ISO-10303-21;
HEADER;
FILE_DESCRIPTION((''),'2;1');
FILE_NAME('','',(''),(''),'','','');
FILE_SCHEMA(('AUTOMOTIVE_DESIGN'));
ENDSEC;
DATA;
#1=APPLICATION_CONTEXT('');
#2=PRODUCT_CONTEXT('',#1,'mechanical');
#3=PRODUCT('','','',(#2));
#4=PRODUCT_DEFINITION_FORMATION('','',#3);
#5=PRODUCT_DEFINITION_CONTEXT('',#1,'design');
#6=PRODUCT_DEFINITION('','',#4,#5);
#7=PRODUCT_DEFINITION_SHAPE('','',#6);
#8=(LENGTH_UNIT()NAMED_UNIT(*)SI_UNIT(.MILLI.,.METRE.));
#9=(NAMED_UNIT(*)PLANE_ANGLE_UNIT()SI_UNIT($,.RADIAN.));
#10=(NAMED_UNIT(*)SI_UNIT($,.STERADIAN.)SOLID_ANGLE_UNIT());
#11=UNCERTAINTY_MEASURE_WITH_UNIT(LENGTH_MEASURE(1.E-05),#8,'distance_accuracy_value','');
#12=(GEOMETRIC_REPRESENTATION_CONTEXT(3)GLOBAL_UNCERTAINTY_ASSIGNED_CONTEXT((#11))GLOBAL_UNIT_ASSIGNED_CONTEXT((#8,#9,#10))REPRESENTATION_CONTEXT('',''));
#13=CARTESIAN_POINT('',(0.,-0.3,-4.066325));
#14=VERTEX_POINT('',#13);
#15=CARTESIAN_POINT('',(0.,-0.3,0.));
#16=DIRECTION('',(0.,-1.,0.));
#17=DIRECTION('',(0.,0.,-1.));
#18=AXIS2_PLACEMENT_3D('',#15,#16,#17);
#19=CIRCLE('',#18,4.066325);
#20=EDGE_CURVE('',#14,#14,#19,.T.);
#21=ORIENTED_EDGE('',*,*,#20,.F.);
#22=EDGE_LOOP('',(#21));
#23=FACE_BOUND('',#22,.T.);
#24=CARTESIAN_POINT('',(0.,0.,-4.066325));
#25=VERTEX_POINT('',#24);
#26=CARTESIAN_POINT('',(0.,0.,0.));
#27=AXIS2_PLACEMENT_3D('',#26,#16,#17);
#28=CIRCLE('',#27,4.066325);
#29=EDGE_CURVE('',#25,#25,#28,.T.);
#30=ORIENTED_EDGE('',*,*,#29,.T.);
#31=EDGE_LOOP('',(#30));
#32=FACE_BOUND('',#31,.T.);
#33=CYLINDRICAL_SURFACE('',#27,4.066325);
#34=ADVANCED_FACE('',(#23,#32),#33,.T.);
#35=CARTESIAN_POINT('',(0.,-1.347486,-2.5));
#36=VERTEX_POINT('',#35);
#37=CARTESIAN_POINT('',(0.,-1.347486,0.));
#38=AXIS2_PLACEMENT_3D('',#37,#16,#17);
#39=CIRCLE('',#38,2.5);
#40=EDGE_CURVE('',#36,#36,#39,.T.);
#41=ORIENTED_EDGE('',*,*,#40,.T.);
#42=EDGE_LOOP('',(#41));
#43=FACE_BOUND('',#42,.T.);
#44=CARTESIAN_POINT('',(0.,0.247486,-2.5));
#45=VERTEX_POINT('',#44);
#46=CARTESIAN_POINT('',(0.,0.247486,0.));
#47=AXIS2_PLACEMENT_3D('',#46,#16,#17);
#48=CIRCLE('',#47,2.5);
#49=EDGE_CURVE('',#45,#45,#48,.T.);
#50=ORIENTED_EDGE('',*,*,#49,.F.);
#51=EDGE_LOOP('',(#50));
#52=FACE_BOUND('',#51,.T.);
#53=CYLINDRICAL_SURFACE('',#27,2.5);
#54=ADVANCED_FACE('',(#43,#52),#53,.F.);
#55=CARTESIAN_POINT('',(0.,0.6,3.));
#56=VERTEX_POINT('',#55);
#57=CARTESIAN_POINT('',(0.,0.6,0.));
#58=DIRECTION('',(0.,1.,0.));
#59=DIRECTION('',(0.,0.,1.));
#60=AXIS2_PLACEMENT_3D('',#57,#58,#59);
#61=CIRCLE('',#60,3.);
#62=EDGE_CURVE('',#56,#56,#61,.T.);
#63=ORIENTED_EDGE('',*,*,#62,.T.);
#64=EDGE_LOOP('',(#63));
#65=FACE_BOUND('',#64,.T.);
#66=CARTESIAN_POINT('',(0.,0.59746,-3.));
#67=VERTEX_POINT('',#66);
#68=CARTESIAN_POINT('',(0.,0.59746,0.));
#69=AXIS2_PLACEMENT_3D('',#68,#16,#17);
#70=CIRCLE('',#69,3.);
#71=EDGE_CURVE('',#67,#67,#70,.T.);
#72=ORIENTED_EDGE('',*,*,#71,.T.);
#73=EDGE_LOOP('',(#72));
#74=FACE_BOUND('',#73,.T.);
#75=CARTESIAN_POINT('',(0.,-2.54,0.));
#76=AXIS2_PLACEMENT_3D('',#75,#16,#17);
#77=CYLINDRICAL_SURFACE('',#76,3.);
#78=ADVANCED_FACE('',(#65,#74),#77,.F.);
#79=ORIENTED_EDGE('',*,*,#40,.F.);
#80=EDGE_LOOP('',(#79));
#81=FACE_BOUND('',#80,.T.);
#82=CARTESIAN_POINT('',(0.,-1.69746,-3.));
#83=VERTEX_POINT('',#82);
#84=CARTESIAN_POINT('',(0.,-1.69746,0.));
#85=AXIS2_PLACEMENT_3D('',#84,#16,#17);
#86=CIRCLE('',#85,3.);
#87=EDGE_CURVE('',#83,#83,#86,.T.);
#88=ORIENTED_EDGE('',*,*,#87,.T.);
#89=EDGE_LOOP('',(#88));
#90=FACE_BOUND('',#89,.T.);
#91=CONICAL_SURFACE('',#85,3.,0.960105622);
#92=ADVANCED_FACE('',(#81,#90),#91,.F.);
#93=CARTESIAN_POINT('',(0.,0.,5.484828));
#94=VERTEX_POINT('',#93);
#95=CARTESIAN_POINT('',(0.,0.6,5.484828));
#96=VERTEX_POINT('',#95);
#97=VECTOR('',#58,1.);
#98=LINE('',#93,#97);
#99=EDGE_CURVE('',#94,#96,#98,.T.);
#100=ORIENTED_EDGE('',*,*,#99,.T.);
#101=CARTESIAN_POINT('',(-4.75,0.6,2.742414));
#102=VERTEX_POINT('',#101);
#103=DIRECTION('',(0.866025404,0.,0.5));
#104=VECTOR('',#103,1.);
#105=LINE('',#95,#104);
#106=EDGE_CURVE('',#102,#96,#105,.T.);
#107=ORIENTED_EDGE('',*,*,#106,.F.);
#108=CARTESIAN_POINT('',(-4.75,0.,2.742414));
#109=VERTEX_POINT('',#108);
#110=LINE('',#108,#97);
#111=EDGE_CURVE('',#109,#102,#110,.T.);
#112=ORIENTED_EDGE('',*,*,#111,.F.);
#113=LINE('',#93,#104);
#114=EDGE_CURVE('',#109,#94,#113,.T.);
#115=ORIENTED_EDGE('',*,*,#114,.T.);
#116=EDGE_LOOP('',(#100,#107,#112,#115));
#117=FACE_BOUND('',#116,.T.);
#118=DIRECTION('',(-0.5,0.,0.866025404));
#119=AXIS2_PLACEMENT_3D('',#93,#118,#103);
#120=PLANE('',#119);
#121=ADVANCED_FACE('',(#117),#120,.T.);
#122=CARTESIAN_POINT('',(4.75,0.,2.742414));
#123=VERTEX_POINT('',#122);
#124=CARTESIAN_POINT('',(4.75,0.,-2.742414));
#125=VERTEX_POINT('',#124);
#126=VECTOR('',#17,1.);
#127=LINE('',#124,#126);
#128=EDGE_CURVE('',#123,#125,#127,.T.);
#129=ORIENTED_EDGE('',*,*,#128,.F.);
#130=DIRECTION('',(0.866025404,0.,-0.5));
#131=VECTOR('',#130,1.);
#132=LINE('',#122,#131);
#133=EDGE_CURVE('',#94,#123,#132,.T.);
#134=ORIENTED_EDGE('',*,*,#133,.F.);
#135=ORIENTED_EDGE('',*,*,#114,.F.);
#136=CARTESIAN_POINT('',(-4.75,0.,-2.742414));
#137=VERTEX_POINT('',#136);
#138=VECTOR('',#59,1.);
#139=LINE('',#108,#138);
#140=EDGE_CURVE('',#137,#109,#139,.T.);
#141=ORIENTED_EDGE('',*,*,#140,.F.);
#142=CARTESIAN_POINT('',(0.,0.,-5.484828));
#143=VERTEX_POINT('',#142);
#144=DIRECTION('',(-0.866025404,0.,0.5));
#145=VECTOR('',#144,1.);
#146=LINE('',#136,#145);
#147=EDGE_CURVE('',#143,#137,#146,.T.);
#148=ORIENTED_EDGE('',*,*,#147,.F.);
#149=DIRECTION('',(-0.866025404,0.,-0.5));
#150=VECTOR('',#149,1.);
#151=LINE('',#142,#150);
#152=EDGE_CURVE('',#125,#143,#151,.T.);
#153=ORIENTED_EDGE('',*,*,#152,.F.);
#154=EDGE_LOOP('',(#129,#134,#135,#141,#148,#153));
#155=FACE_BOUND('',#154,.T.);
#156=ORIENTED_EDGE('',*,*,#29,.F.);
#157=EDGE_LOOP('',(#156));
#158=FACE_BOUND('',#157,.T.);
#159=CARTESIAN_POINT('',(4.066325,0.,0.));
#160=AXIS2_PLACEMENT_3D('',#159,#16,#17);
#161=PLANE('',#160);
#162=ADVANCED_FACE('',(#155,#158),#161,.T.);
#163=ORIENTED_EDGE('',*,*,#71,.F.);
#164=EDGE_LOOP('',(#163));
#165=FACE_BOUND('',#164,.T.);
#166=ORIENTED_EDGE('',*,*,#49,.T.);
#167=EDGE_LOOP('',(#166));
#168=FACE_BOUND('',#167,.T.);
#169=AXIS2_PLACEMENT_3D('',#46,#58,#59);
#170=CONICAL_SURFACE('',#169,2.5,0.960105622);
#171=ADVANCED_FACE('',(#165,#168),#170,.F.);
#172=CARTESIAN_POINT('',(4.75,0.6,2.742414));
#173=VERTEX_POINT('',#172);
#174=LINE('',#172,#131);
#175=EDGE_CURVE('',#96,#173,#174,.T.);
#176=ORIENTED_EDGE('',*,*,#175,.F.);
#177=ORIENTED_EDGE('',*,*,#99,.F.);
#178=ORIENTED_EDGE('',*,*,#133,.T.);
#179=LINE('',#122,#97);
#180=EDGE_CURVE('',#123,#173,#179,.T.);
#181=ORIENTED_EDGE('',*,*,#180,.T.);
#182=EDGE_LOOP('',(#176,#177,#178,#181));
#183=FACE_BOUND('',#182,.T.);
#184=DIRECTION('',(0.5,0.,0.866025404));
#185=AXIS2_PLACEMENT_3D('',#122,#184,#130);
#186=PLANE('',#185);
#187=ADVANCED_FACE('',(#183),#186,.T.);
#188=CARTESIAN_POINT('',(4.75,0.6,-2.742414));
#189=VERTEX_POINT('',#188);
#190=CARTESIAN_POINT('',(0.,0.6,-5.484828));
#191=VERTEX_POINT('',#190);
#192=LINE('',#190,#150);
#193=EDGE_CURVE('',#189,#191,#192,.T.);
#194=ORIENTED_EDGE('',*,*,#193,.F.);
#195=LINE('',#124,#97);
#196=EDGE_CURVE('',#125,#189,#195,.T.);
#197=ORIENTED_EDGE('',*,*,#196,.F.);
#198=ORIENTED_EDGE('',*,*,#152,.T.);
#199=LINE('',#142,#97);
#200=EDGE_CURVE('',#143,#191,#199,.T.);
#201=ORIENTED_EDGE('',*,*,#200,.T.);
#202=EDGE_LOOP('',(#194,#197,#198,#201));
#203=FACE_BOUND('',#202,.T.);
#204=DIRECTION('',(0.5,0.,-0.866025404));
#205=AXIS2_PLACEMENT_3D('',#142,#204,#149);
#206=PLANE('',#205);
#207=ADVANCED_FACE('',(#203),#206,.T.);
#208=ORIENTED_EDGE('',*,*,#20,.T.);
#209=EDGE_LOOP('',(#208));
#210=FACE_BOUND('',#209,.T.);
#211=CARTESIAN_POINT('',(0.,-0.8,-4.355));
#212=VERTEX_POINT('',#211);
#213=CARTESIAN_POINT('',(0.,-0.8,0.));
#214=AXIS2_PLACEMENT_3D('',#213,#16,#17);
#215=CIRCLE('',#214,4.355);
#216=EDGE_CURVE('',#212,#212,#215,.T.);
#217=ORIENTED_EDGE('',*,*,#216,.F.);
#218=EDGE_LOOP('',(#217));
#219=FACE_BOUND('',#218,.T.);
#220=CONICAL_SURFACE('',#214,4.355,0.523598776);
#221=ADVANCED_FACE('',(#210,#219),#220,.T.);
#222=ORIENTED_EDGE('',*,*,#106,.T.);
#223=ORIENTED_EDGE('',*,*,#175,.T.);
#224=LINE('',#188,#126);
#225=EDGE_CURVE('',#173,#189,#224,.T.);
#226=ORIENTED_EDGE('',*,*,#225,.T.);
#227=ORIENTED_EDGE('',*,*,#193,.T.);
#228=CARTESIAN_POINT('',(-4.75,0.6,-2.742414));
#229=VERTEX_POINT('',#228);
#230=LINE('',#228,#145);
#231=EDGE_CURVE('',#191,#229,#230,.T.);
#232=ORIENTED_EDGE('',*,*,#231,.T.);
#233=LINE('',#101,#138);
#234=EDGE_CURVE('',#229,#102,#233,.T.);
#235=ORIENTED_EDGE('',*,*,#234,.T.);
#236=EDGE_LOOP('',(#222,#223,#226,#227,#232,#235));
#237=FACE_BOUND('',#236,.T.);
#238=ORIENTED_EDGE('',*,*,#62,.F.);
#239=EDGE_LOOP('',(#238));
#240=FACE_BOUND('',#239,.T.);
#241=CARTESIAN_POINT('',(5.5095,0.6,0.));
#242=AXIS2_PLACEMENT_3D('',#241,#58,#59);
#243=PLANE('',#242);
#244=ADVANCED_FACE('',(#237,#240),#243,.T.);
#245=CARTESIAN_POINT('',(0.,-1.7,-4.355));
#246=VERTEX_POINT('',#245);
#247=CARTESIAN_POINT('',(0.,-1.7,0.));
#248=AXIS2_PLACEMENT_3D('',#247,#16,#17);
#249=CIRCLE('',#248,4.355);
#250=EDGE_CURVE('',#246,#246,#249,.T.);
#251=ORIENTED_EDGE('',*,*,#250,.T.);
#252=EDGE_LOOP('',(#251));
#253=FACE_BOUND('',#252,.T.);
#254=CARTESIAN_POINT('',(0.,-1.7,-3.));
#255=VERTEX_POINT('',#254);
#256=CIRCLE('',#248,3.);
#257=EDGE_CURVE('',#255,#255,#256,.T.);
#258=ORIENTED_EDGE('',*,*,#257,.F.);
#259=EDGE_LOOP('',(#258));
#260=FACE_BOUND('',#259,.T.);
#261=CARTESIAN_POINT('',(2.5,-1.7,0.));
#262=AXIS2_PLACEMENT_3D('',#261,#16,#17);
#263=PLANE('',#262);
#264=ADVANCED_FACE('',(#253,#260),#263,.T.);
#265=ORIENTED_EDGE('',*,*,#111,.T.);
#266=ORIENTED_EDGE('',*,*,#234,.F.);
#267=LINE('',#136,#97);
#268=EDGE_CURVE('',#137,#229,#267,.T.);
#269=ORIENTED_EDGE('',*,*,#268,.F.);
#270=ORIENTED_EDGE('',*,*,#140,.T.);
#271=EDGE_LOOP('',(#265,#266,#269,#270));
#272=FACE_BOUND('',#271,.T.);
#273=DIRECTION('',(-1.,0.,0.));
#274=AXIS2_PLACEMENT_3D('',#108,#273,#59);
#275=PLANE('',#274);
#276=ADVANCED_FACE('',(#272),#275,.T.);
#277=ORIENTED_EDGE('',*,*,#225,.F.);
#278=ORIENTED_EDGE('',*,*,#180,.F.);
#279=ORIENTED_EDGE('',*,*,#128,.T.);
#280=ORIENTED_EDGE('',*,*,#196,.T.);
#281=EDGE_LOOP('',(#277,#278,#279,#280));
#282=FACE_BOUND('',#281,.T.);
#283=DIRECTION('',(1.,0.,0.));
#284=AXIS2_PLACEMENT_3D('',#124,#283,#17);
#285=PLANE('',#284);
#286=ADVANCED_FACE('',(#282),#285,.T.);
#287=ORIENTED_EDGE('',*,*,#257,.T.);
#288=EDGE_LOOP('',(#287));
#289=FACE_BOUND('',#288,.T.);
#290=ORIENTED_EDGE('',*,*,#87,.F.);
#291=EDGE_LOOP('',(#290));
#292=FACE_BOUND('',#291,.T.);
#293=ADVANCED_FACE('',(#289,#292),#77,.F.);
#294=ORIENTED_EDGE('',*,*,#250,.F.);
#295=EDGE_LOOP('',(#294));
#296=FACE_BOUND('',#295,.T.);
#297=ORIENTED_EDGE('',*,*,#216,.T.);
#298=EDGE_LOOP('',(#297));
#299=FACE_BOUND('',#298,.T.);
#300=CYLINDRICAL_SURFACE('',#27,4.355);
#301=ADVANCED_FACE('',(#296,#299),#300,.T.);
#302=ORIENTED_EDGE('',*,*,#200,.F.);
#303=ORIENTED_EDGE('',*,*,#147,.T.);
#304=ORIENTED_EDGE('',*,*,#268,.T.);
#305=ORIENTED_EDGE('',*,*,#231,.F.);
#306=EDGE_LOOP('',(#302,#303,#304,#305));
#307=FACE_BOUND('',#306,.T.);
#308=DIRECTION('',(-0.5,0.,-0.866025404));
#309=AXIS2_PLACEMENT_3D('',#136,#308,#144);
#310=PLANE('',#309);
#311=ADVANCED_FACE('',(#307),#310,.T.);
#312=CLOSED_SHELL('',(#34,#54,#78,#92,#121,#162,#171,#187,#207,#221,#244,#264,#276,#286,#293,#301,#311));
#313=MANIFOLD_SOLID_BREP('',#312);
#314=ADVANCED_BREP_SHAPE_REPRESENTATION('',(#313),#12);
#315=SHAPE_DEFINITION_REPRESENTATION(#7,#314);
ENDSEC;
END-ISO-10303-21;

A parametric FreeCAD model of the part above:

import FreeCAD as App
import Part
import Sketcher

V = App.Vector
Q = App.Units.Quantity

doc = App.newDocument("Part")
body = doc.addObject("PartDesign::Body", "Body")

# Sketch on XY plane
sketch1 = doc.addObject("Sketcher::SketchObject", "Sketch")
body.addObject(sketch1)
sketch1.AttachmentSupport = (doc.XY_Plane, [""])
sketch1.MapMode = "FlatFace"
sketch1.addGeometry([
    Part.LineSegment(V(4.07, 0, 0), V(5.51, 0, 0)),  # 0
    Part.LineSegment(V(5.51, 0, 0), V(5.51, 0.6, 0)),  # 1
    Part.LineSegment(V(5.51, 0.6, 0), V(2.5, 0.6, 0)),  # 2
    Part.LineSegment(V(2.5, 0.6, 0), V(2.5, -1.7, 0)),  # 3
    Part.LineSegment(V(2.5, -1.7, 0), V(4.36, -1.7, 0)),  # 4
    Part.LineSegment(V(4.36, -1.7, 0), V(4.36, -0.8, 0)),  # 5
    Part.LineSegment(V(4.36, -0.8, 0), V(4.07, -0.3, 0)),  # 6
    Part.LineSegment(V(4.07, -0.3, 0), V(4.07, 0, 0)),  # 7
], False)
sketch1.addConstraint([
    Sketcher.Constraint("Coincident", 0, 2, 1, 1),
    Sketcher.Constraint("Coincident", 1, 2, 2, 1),
    Sketcher.Constraint("Coincident", 2, 2, 3, 1),
    Sketcher.Constraint("Coincident", 3, 2, 4, 1),
    Sketcher.Constraint("Coincident", 4, 2, 5, 1),
    Sketcher.Constraint("Coincident", 5, 2, 6, 1),
    Sketcher.Constraint("Coincident", 6, 2, 7, 1),
    Sketcher.Constraint("Coincident", 7, 2, 0, 1),
    Sketcher.Constraint("Horizontal", 0),
    Sketcher.Constraint("Vertical", 1),
    Sketcher.Constraint("Horizontal", 2),
    Sketcher.Constraint("Vertical", 3),
    Sketcher.Constraint("Horizontal", 4),
    Sketcher.Constraint("Vertical", 5),
    Sketcher.Constraint("Vertical", 7),
    Sketcher.Constraint("PointOnObject", 0, 2, -1),
    Sketcher.Constraint("Angle", 6, Q("120 deg")),
    Sketcher.Constraint("DistanceY", 1, 1, 1, 2, 0.6),
    Sketcher.Constraint("DistanceY", 3, 2, 3, 1, 2.3),
    Sketcher.Constraint("DistanceY", 5, 1, 5, 2, 0.9),
    Sketcher.Constraint("DistanceY", 7, 1, 7, 2, 0.3),
    Sketcher.Constraint("DistanceX", -1, 1, 2, 2, 2.5),
    Sketcher.Constraint("DistanceX", 4, 1, 4, 2, 1.855),
    Sketcher.Constraint("DistanceX", 2, 2, 2, 1, 3.0095),
])
revolution = doc.addObject("PartDesign::Revolution", "Revolution")
body.addObject(revolution)
revolution.Profile = sketch1
revolution.ReferenceAxis = (sketch1, ["V_Axis"])
revolution.Angle = 360

# Sketch on XY plane
sketch2 = doc.addObject("Sketcher::SketchObject", "Sketch001")
body.addObject(sketch2)
sketch2.AttachmentSupport = (doc.XY_Plane, [""])
sketch2.MapMode = "FlatFace"
sketch2.addGeometry([
    Part.LineSegment(V(3, -1.95, 0), V(3, -1.7, 0)),  # 0
    Part.LineSegment(V(3, -1.7, 0), V(2.5, -1.35, 0)),  # 1
    Part.LineSegment(V(2.5, -1.35, 0), V(2.5, -1.95, 0)),  # 2
    Part.LineSegment(V(2.5, -1.95, 0), V(3, -1.95, 0)),  # 3
    Part.LineSegment(V(2.5, 0.25, 0), V(3, 0.6, 0)),  # 4
    Part.LineSegment(V(3, 0.6, 0), V(3, 0.85, 0)),  # 5
    Part.LineSegment(V(3, 0.85, 0), V(2.5, 0.85, 0)),  # 6
    Part.LineSegment(V(2.5, 0.85, 0), V(2.5, 0.25, 0)),  # 7
], False)
sketch2.addConstraint([
    Sketcher.Constraint("Coincident", 0, 2, 1, 1),
    Sketcher.Constraint("Coincident", 1, 2, 2, 1),
    Sketcher.Constraint("Coincident", 2, 2, 3, 1),
    Sketcher.Constraint("Coincident", 3, 2, 0, 1),
    Sketcher.Constraint("Coincident", 4, 2, 5, 1),
    Sketcher.Constraint("Coincident", 5, 2, 6, 1),
    Sketcher.Constraint("Coincident", 6, 2, 7, 1),
    Sketcher.Constraint("Coincident", 7, 2, 4, 1),
    Sketcher.Constraint("Vertical", 0),
    Sketcher.Constraint("Vertical", 2),
    Sketcher.Constraint("Horizontal", 3),
    Sketcher.Constraint("Vertical", 5),
    Sketcher.Constraint("Horizontal", 6),
    Sketcher.Constraint("Vertical", 7),
    Sketcher.Constraint("Vertical", 3, 2, 4, 2),
    Sketcher.Constraint("Vertical", 2, 2, 6, 2),
    Sketcher.Constraint("Equal", 0, 5),
    Sketcher.Constraint("Equal", 2, 7),
    Sketcher.Constraint("DistanceX", 3, 1, 3, 2, 0.5),
    Sketcher.Constraint("DistanceX", -1, 1, 0, 2, 3.0),
    Sketcher.Constraint("Angle", 1, Q("145.01 deg")),
    Sketcher.Constraint("DistanceY", 2, 2, -1, 1, 1.954),
    Sketcher.Constraint("DistanceY", -1, 1, 5, 2, 0.854),
    Sketcher.Constraint("DistanceY", 0, 1, 0, 2, 0.25654),
])
groove = doc.addObject("PartDesign::Groove", "Groove")
body.addObject(groove)
groove.Profile = sketch2
groove.ReferenceAxis = (sketch2, ["V_Axis"])
groove.Angle = 360

# Sketch on XZ plane
sketch3 = doc.addObject("Sketcher::SketchObject", "Sketch002")
body.addObject(sketch3)
sketch3.AttachmentSupport = (doc.XZ_Plane, [""])
sketch3.MapMode = "FlatFace"
sketch3.AttachmentOffset = App.Placement(V(0, 0, -0.6), App.Rotation())
sketch3.addGeometry([
    Part.Circle(V(0, 0, 0), V(0, 0, 1), 6),  # 0
    Part.LineSegment(V(5, 3, 0), V(0, 5, 0)),  # 1
    Part.LineSegment(V(0, 5, 0), V(-5, 3, 0)),  # 2
    Part.LineSegment(V(-5, 3, 0), V(-5, -3, 0)),  # 3
    Part.LineSegment(V(-5, -3, 0), V(0, -5, 0)),  # 4
    Part.LineSegment(V(0, -5, 0), V(5, -3, 0)),  # 5
    Part.LineSegment(V(5, -3, 0), V(5, 3, 0)),  # 6
], False)
sketch3.addConstraint([
    Sketcher.Constraint("Coincident", 1, 2, 2, 1),
    Sketcher.Constraint("Coincident", 2, 2, 3, 1),
    Sketcher.Constraint("Coincident", 3, 2, 4, 1),
    Sketcher.Constraint("Coincident", 4, 2, 5, 1),
    Sketcher.Constraint("Coincident", 5, 2, 6, 1),
    Sketcher.Constraint("Coincident", 6, 2, 1, 1),
    Sketcher.Constraint("Vertical", 3),
    Sketcher.Constraint("Vertical", 6),
    Sketcher.Constraint("Coincident", 0, 3, -1, 1),
    Sketcher.Constraint("Symmetric", 1, 2, 4, 2, -1, 1),
    Sketcher.Constraint("Symmetric", 2, 2, 5, 2, -1, 1),
    Sketcher.Constraint("PointOnObject", 1, 2, -2),
    Sketcher.Constraint("Parallel", 1, 4),
    Sketcher.Constraint("Horizontal", 3, 2, 5, 2),
    Sketcher.Constraint("Angle", 1, Q("150 deg")),
    Sketcher.Constraint("Diameter", 0, 11.021),
    Sketcher.Constraint("DistanceX", 3, 2, 5, 2, 9.5),
    Sketcher.Constraint("DistanceY", 3, 2, 3, 1, 5.484828),
])
pocket1 = doc.addObject("PartDesign::Pocket", "Pocket")
body.addObject(pocket1)
pocket1.Profile = sketch3
pocket1.Length = 0.6
pocket1.Reversed = True

doc.recompute()
